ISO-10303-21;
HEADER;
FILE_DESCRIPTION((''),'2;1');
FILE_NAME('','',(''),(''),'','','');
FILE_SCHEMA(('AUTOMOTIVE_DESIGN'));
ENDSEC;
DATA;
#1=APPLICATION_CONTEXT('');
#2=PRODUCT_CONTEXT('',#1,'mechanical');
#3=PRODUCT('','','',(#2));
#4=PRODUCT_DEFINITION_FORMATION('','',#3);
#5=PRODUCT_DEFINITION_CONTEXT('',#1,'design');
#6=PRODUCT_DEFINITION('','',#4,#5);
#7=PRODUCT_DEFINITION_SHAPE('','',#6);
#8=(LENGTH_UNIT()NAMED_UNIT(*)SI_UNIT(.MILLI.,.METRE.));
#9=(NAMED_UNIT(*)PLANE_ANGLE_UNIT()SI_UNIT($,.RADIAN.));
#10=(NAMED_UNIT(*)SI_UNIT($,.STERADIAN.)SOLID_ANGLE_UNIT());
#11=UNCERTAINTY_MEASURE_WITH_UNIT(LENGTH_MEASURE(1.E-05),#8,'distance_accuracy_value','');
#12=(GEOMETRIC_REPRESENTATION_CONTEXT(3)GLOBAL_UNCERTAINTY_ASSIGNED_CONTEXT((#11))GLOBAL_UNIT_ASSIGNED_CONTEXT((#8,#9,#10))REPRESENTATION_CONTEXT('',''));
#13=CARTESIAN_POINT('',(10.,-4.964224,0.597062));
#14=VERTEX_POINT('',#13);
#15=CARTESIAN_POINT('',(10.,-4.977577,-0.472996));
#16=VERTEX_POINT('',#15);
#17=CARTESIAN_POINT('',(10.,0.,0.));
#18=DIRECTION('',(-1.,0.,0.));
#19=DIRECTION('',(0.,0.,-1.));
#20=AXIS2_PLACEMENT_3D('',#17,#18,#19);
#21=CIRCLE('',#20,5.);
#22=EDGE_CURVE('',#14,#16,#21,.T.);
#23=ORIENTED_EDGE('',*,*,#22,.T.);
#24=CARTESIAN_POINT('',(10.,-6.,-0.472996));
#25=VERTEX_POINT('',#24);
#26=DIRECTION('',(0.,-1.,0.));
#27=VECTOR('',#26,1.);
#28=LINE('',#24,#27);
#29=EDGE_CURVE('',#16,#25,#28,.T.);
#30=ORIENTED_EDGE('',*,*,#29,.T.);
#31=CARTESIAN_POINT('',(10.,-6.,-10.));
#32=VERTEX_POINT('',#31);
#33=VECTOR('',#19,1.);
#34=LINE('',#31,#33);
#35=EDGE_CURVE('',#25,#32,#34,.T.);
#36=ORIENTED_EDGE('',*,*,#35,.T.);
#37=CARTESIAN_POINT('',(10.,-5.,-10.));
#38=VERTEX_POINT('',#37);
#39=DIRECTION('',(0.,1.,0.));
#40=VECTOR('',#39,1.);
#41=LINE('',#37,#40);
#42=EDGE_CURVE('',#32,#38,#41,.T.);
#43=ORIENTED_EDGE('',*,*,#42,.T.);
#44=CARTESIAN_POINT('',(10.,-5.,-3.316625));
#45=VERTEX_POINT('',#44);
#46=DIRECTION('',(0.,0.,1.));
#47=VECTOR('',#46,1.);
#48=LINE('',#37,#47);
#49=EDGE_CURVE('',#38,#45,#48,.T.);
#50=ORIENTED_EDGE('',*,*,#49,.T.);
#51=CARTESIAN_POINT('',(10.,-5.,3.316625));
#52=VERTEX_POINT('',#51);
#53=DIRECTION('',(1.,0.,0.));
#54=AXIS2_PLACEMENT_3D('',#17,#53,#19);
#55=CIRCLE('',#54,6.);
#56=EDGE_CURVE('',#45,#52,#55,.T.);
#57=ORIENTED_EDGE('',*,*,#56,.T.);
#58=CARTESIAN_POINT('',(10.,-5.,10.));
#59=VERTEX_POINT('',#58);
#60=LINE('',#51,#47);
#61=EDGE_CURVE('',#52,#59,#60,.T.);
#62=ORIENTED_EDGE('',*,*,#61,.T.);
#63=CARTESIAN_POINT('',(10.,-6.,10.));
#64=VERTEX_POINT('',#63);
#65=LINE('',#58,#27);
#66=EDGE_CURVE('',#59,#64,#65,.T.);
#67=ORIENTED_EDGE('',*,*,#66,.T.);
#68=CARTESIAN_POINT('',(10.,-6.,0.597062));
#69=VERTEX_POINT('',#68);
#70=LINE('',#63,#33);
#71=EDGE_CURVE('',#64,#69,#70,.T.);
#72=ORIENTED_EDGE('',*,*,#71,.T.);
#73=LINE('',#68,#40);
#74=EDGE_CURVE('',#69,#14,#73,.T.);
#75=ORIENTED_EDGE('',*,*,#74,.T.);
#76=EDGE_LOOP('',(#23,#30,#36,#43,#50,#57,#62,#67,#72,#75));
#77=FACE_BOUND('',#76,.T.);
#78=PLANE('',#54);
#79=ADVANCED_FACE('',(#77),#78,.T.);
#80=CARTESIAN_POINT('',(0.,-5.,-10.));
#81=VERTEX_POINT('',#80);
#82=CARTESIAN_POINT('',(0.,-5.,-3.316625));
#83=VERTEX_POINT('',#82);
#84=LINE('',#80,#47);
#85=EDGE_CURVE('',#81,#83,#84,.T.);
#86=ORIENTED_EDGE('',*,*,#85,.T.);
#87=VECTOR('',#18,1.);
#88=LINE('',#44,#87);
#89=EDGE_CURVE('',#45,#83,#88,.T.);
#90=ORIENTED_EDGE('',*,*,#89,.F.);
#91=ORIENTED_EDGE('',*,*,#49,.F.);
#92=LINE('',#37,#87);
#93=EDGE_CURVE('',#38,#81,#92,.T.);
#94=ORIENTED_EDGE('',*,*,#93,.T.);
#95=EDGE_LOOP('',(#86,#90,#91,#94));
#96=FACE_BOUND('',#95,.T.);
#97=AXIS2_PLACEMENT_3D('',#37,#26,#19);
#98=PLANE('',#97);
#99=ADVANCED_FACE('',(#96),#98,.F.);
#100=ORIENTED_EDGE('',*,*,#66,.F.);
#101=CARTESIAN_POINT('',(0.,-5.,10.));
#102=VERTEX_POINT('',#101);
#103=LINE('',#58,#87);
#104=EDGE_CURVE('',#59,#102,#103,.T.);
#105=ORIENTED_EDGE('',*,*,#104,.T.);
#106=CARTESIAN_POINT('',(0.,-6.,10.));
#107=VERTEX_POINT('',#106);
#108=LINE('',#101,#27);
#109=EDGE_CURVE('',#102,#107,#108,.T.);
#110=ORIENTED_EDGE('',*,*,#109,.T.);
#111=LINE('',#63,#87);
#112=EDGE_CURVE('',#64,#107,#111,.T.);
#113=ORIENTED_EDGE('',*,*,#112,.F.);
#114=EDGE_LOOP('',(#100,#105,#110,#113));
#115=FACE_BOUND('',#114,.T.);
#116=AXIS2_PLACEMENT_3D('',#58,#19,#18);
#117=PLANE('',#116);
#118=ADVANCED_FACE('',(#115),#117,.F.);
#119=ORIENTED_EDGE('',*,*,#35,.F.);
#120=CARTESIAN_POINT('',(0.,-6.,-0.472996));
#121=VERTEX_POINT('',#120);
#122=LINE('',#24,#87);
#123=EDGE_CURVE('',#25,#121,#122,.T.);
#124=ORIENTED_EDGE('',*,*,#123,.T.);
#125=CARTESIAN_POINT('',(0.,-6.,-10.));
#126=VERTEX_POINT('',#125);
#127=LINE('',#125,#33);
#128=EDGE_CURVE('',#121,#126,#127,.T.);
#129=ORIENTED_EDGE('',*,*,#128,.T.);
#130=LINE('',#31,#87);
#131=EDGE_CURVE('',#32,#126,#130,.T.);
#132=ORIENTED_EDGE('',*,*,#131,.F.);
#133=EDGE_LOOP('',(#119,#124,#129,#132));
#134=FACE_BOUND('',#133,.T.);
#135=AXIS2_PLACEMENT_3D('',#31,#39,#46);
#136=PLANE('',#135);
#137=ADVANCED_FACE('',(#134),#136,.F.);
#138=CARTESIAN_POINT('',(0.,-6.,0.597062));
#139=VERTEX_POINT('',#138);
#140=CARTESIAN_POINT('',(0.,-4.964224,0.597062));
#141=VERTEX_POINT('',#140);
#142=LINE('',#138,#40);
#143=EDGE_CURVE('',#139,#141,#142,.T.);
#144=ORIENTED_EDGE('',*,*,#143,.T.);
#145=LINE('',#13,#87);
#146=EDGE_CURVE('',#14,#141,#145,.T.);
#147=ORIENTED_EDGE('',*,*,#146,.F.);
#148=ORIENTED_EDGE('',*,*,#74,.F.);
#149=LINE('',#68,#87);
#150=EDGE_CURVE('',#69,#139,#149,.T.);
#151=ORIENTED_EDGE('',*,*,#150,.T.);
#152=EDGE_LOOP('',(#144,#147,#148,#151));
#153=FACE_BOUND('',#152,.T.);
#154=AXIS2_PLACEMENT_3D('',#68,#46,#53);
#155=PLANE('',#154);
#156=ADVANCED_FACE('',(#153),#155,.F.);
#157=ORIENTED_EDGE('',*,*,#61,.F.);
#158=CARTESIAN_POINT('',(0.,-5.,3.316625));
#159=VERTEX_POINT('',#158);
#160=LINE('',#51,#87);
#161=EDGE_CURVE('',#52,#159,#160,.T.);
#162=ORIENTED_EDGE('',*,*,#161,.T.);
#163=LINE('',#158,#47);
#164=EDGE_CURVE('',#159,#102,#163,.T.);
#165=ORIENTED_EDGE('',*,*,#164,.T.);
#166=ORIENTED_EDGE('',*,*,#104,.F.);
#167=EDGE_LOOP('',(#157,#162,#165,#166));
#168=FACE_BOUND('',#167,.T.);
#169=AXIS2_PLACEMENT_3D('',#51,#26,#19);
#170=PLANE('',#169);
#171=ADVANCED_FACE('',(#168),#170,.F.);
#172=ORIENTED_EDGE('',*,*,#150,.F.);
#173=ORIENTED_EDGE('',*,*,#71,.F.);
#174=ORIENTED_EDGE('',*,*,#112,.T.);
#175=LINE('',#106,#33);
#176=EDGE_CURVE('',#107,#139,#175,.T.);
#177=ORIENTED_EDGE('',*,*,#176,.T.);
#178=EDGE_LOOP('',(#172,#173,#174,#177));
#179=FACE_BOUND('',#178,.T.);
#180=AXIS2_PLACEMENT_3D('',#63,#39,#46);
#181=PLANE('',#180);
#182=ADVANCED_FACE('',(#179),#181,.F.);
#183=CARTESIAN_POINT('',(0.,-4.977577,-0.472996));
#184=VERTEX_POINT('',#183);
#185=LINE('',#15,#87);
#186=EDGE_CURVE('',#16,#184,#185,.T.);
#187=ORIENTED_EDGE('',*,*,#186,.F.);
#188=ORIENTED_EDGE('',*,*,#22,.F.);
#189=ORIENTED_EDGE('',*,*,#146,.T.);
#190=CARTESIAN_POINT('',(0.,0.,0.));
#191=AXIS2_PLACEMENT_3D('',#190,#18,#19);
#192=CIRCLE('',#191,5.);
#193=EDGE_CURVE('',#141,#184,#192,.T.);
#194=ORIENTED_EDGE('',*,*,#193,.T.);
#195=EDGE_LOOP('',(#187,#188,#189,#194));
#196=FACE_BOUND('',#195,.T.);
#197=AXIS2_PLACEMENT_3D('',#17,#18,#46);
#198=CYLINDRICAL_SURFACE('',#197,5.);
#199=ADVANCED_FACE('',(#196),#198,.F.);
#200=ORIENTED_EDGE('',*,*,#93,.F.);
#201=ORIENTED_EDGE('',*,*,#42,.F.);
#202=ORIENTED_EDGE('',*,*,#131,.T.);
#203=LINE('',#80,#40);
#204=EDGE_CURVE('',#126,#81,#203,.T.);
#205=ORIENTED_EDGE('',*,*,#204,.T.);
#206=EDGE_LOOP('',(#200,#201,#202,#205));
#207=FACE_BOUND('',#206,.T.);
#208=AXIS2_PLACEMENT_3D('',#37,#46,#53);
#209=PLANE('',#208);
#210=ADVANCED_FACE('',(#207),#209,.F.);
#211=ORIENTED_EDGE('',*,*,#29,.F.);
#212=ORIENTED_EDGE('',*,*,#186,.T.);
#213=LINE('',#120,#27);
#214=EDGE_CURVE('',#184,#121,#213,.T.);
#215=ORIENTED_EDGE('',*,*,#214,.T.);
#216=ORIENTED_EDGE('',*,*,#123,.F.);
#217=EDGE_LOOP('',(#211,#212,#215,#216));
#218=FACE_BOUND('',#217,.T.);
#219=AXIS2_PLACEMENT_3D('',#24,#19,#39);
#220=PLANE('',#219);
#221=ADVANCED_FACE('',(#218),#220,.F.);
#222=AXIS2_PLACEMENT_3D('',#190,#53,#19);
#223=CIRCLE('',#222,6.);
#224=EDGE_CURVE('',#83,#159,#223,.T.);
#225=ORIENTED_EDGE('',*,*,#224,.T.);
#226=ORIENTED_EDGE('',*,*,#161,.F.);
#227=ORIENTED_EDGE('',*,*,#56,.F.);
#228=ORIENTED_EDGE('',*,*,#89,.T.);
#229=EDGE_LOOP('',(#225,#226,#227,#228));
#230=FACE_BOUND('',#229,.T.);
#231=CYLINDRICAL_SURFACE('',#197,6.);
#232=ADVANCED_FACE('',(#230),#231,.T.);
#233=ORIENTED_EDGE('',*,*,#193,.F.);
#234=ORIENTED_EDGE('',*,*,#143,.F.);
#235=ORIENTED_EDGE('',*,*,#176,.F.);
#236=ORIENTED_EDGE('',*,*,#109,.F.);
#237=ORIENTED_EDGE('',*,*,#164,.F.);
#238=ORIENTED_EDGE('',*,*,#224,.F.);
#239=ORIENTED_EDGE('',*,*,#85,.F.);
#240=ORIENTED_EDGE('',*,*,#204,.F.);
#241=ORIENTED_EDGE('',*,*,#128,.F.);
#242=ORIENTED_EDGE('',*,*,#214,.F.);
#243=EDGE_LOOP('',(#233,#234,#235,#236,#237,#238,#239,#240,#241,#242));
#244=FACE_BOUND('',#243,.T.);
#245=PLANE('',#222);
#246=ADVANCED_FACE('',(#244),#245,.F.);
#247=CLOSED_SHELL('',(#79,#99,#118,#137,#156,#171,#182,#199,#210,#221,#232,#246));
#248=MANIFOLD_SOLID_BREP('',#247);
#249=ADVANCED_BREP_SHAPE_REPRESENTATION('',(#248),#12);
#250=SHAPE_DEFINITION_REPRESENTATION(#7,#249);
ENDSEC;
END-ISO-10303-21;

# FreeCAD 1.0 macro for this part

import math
import FreeCAD as App
import Part
import Sketcher

doc = App.newDocument("Part")
body = doc.addObject("PartDesign::Body", "Body")

sketch1 = body.newObject("Sketcher::SketchObject", "Sketch")
sketch1.AttachmentSupport = (doc.getObject("YZ_Plane"), [""])
sketch1.MapMode = "FlatFace"
sketch1.addGeometry([
    Part.LineSegment(App.Vector(-5, -10, 0), App.Vector(-5, -3.316625, 0)),
    Part.ArcOfCircle(Part.Circle(App.Vector(0, 0, 0), App.Vector(0, 0, 1), 6), math.radians(-146.44269), math.radians(146.44269)),
    Part.LineSegment(App.Vector(-5, 3.316625, 0), App.Vector(-5, 10, 0)),
    Part.LineSegment(App.Vector(-5, 10, 0), App.Vector(-6, 10, 0)),
    Part.LineSegment(App.Vector(-6, 10, 0), App.Vector(-6, 0.597062, 0)),
    Part.LineSegment(App.Vector(-6, 0.597062, 0), App.Vector(-4.964224, 0.597062, 0)),
    Part.ArcOfCircle(Part.Circle(App.Vector(0, 0, 0), App.Vector(0, 0, 1), 5), math.radians(-174.571751), math.radians(173.141811)),
    Part.LineSegment(App.Vector(-4.977577, -0.472996, 0), App.Vector(-6, -0.472996, 0)),
    Part.LineSegment(App.Vector(-6, -0.472996, 0), App.Vector(-6, -10, 0)),
    Part.LineSegment(App.Vector(-6, -10, 0), App.Vector(-5, -10, 0)),
], False)
sketch1.addConstraint([
    Sketcher.Constraint("Coincident", 0, 2, 1, 1),
    Sketcher.Constraint("Coincident", 1, 2, 2, 1),
    Sketcher.Constraint("Coincident", 2, 2, 3, 1),
    Sketcher.Constraint("Coincident", 3, 2, 4, 1),
    Sketcher.Constraint("Coincident", 4, 2, 5, 1),
    Sketcher.Constraint("Coincident", 5, 2, 6, 2),
    Sketcher.Constraint("Coincident", 6, 1, 7, 1),
    Sketcher.Constraint("Coincident", 7, 2, 8, 1),
    Sketcher.Constraint("Coincident", 8, 2, 9, 1),
    Sketcher.Constraint("Coincident", 9, 2, 0, 1),
    Sketcher.Constraint("Vertical", 0),
    Sketcher.Constraint("Vertical", 2),
    Sketcher.Constraint("Horizontal", 3),
    Sketcher.Constraint("Vertical", 4),
    Sketcher.Constraint("Horizontal", 5),
    Sketcher.Constraint("Horizontal", 7),
    Sketcher.Constraint("Vertical", 8),
    Sketcher.Constraint("Horizontal", 9),
    Sketcher.Constraint("Coincident", 1, 3, -1, 1),
    Sketcher.Constraint("Coincident", 6, 3, -1, 1),
    Sketcher.Constraint("Symmetric", 3, 2, 8, 2, -1),
    Sketcher.Constraint("Vertical", 0, 2, 1, 2),
    Sketcher.Constraint("Radius", 1, 6.0),
    Sketcher.Constraint("Radius", 6, 5.0),
    Sketcher.Constraint("DistanceX", 3, 2, 3, 1, 1.0),
    Sketcher.Constraint("DistanceX", 0, 2, -1, 1, 5.0),
    Sketcher.Constraint("DistanceY", -1, 1, 2, 2, 10.0),
    Sketcher.Constraint("DistanceY", 4, 2, 4, 1, 9.402938),
    Sketcher.Constraint("DistanceX", 7, 2, 7, 1, 1.022423),
])
pad1 = body.newObject("PartDesign::Pad", "Pad")
pad1.Profile = sketch1
pad1.Length = 10

doc.recompute()
